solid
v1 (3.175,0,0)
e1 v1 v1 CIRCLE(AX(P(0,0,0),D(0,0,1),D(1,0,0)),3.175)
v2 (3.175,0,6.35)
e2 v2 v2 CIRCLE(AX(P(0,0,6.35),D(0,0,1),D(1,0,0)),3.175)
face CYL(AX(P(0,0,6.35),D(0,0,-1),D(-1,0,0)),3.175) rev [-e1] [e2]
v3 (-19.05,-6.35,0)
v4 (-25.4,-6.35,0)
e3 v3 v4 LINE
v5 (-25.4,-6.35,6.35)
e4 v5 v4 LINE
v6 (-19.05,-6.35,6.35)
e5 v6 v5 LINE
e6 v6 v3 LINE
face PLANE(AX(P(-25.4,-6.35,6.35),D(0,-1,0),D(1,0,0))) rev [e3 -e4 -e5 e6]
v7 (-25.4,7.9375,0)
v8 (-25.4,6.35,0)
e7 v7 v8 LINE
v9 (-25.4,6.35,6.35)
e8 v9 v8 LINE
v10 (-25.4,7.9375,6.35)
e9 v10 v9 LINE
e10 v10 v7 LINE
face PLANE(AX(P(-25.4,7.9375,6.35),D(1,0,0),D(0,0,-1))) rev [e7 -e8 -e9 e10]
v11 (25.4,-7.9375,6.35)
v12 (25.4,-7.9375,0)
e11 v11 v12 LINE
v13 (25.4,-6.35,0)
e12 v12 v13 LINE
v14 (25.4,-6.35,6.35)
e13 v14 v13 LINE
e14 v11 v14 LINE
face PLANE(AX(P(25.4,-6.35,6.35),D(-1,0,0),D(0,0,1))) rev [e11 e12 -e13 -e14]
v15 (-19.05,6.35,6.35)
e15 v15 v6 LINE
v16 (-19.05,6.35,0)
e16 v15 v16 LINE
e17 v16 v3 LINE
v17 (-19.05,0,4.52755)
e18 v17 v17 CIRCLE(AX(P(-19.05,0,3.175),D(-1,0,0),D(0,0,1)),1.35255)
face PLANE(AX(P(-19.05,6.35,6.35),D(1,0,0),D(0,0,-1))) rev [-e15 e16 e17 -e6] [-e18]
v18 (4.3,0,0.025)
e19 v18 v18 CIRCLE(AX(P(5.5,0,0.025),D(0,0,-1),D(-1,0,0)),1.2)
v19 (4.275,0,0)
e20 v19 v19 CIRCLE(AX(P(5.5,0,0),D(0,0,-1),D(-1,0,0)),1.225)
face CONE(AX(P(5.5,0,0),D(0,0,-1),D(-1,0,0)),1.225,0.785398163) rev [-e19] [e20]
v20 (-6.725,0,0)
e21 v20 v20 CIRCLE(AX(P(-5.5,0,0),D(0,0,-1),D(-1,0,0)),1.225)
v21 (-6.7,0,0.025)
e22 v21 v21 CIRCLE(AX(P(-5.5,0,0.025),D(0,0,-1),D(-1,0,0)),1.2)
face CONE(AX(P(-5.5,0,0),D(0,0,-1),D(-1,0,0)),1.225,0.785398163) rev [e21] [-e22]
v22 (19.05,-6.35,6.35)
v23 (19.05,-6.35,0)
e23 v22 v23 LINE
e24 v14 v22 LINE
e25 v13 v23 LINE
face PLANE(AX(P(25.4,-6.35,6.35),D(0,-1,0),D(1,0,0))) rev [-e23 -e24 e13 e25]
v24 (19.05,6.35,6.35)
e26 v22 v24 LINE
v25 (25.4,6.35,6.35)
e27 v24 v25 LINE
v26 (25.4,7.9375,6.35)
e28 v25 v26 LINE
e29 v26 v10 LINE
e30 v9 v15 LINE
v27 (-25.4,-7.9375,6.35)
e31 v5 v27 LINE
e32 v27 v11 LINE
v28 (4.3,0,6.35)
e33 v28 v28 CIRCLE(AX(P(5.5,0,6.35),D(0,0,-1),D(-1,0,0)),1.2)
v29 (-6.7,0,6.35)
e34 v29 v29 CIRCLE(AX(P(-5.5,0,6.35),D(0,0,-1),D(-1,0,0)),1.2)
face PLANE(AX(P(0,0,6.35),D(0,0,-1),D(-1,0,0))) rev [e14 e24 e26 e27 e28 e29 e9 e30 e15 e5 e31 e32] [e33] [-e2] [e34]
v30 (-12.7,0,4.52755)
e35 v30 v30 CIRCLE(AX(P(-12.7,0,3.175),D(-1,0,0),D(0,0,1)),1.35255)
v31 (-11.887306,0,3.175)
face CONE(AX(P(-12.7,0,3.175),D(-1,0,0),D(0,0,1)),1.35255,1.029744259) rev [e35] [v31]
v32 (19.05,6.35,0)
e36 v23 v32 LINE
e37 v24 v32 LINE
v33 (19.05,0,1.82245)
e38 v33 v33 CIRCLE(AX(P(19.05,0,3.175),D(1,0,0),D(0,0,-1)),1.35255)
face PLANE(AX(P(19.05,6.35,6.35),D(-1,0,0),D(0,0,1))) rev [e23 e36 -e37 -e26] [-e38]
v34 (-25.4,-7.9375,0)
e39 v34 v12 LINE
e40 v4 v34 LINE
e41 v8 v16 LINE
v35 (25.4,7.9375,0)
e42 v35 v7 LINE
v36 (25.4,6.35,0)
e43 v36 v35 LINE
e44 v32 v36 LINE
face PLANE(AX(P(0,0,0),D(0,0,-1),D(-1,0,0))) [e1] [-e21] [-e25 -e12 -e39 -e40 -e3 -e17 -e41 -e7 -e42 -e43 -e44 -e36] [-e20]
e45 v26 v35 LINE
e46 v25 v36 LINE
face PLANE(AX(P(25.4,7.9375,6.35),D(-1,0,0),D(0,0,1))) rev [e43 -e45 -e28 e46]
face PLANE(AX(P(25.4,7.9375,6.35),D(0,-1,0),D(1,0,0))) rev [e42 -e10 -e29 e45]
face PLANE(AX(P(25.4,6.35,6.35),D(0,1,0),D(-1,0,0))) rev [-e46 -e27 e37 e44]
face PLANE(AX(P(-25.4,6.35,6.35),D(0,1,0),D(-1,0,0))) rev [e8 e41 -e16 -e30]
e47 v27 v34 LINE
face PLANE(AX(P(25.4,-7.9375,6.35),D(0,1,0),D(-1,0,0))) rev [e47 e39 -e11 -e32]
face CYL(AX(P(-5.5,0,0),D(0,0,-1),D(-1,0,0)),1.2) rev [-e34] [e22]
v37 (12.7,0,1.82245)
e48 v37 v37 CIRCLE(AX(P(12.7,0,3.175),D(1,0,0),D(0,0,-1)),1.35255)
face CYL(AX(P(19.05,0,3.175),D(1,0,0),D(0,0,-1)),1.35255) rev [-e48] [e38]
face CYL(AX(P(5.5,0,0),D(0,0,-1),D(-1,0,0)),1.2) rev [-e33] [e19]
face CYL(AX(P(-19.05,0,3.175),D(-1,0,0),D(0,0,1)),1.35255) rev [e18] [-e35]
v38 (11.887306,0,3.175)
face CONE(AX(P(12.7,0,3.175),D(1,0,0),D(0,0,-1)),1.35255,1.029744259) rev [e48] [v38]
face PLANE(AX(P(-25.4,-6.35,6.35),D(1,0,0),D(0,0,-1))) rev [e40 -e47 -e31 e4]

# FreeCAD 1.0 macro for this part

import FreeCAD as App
import Part
import Sketcher
from FreeCAD import Vector
Q = App.Units.Quantity


def add_polygon(sketch, points):
    """Adds a closed chain of lines whose ends are joined by coincident constraints."""
    first, n = sketch.GeometryCount, len(points)
    for a, b in zip(points, points[1:] + points[:1]):
        sketch.addGeometry(Part.LineSegment(App.Vector(*a, 0), App.Vector(*b, 0)), False)
    for i in range(n):
        sketch.addConstraint(Sketcher.Constraint("Coincident", first + i, 2, first + (i + 1) % n, 1))

doc = App.newDocument("Part")
params = doc.addObject("Spreadsheet::Sheet", "Params")
for row, (alias, value) in enumerate([
    ("sketch1_diameter", "0.25 in"),
    ("sketch1_width", "2 in"),
    ("sketch1_height", "0.5 in"),
    ("sketch1_width2", "0.25 in"),
    ("sketch1_height2", "0.0625 in"),
    ("pad1_length", "0.25 in"),
    ("sketch2_width", "0.25 in"),
    ("groove_angle", "360 deg"),
    ("hole_diameter", "2.4 mm"),
    ("hole_csink_diameter", "2.45 mm"),
], start=1):
    params.set(f"A{row}", alias)
    params.set(f"B{row}", "=" + value)
    params.setAlias(f"B{row}", alias)

body = doc.addObject("PartDesign::Body", "Body")

# Sketch on XY plane
sketch1 = body.newObject("Sketcher::SketchObject", "Sketch")
sketch1.AttachmentSupport = (doc.getObject("XY_Plane"), [""])
sketch1.MapMode = "FlatFace"
add_polygon(sketch1, [(25.4, -7.9375), (25.4, -6.35), (19.05, -6.35), (19.05, 6.35), (25.4, 6.35), (25.4, 7.9375), (-25.4, 7.9375), (-25.4, 6.35), (-19.05, 6.35), (-19.05, -6.35), (-25.4, -6.35), (-25.4, -7.9375)])  # lines 0-11
sketch1.addGeometry(Part.Circle(Vector(0, 0, 0), Vector(0, 0, 1), 3.175), False)  # 12
sketch1.addConstraint(Sketcher.Constraint("Vertical", 0))
sketch1.addConstraint(Sketcher.Constraint("Horizontal", 1))
sketch1.addConstraint(Sketcher.Constraint("Vertical", 2))
sketch1.addConstraint(Sketcher.Constraint("Horizontal", 3))
sketch1.addConstraint(Sketcher.Constraint("Vertical", 4))
sketch1.addConstraint(Sketcher.Constraint("Horizontal", 5))
sketch1.addConstraint(Sketcher.Constraint("Vertical", 6))
sketch1.addConstraint(Sketcher.Constraint("Horizontal", 7))
sketch1.addConstraint(Sketcher.Constraint("Vertical", 8))
sketch1.addConstraint(Sketcher.Constraint("Horizontal", 9))
sketch1.addConstraint(Sketcher.Constraint("Vertical", 10))
sketch1.addConstraint(Sketcher.Constraint("Horizontal", 11))
sketch1.addConstraint(Sketcher.Constraint("Coincident", 12, 3, -1, 1))
sketch1.addConstraint(Sketcher.Constraint("Symmetric", 0, 2, 6, 2, -1, 1))
sketch1.addConstraint(Sketcher.Constraint("Symmetric", 2, 2, 8, 2, -1, 1))
sketch1.addConstraint(Sketcher.Constraint("Symmetric", 4, 2, 10, 2, -1, 1))
sketch1.addConstraint(Sketcher.Constraint("Symmetric", 3, 2, 6, 2, -2))
sketch1.addConstraint(Sketcher.Constraint("Diameter", 12, Q("0.25 in")))
sketch1.addConstraint(Sketcher.Constraint("DistanceX", 5, 2, 5, 1, Q("2 in")))
sketch1.addConstraint(Sketcher.Constraint("DistanceY", 2, 1, 2, 2, Q("0.5 in")))
sketch1.addConstraint(Sketcher.Constraint("DistanceX", 1, 2, 1, 1, Q("0.25 in")))
sketch1.addConstraint(Sketcher.Constraint("DistanceY", 0, 1, 0, 2, Q("0.0625 in")))
sketch1.setExpression("Constraints[29]", "Params.sketch1_diameter")
sketch1.setExpression("Constraints[30]", "Params.sketch1_width")
sketch1.setExpression("Constraints[31]", "Params.sketch1_height")
sketch1.setExpression("Constraints[32]", "Params.sketch1_width2")
sketch1.setExpression("Constraints[33]", "Params.sketch1_height2")
pad1 = body.newObject("PartDesign::Pad", "Pad")
pad1.Profile = sketch1
pad1.setExpression("Length", "Params.pad1_length")

# Sketch on XZ plane
sketch2 = body.newObject("Sketcher::SketchObject", "Sketch001")
sketch2.AttachmentSupport = (doc.getObject("XZ_Plane"), [""])
sketch2.MapMode = "FlatFace"
add_polygon(sketch2, [(11.887306, 3.175), (19.05, 3.175), (19.05, 1.82245), (12.7, 1.82245)])  # lines 0-3
sketch2.addGeometry(Part.LineSegment(Vector(19.05, 3.175, 0), Vector(11.887306, 3.175, 0)), True)  # axis
sketch2.addConstraint(Sketcher.Constraint("Horizontal", 0))
sketch2.addConstraint(Sketcher.Constraint("Vertical", 1))
sketch2.addConstraint(Sketcher.Constraint("Horizontal", 2))
sketch2.addConstraint(Sketcher.Constraint("Horizontal", 4))
sketch2.addConstraint(Sketcher.Constraint("Coincident", 4, 1, 0, 2))
sketch2.addConstraint(Sketcher.Constraint("Equal", 0, 4))
sketch2.addConstraint(Sketcher.Constraint("Angle", 3, Q("121 deg")))
sketch2.addConstraint(Sketcher.Constraint("DistanceX", 2, 2, 2, 1, Q("0.25 in")))
sketch2.addConstraint(Sketcher.Constraint("DistanceX", -1, 1, 2, 2, Q("0.5 in")))
sketch2.addConstraint(Sketcher.Constraint("DistanceY", -1, 1, 0, 2, Q("0.125 in")))
sketch2.addConstraint(Sketcher.Constraint("DistanceY", 1, 2, 1, 1, 1.35255))
sketch2.setExpression("Constraints[11]", "Params.sketch2_width")
groove = body.newObject("PartDesign::Groove", "Groove")
groove.Profile = sketch2
groove.ReferenceAxis = (sketch2, ["Axis0"])
groove.setExpression("Angle", "Params.groove_angle")

# Sketch on XY plane
sketch3 = body.newObject("Sketcher::SketchObject", "Sketch002")
sketch3.AttachmentSupport = (doc.getObject("XY_Plane"), [""])
sketch3.MapMode = "FlatFace"
sketch3.addGeometry(Part.Circle(Vector(5.5, 0, 0), Vector(0, 0, 1), 1.2), False)
sketch3.addGeometry(Part.Circle(Vector(-5.5, 0, 0), Vector(0, 0, 1), 1.2), False)
sketch3.addConstraint(Sketcher.Constraint("Equal", 0, 1))
sketch3.addConstraint(Sketcher.Constraint("Symmetric", 0, 3, 1, 3, -1, 1))
sketch3.addConstraint(Sketcher.Constraint("PointOnObject", 0, 3, -1))
sketch3.addConstraint(Sketcher.Constraint("Diameter", 0, 2.4))
sketch3.addConstraint(Sketcher.Constraint("DistanceX", -1, 1, 0, 3, 5.5))
doc.recompute()
hole = body.newObject("PartDesign::Hole", "Hole")
hole.Profile = sketch3
hole.ThreadType = "None"
hole.setExpression("Diameter", "Params.hole_diameter")
hole.DepthType = "ThroughAll"
hole.HoleCutType = "Countersink"
hole.setExpression("HoleCutDiameter", "Params.hole_csink_diameter")
hole.HoleCutCountersinkAngle = 90
hole.Reversed = True
doc.recompute()

mirrored = body.newObject("PartDesign::Mirrored", "Mirrored")
mirrored.Originals = [groove]
mirrored.MirrorPlane = (doc.getObject("YZ_Plane"), [""])
body.Tip = mirrored

doc.recompute()
